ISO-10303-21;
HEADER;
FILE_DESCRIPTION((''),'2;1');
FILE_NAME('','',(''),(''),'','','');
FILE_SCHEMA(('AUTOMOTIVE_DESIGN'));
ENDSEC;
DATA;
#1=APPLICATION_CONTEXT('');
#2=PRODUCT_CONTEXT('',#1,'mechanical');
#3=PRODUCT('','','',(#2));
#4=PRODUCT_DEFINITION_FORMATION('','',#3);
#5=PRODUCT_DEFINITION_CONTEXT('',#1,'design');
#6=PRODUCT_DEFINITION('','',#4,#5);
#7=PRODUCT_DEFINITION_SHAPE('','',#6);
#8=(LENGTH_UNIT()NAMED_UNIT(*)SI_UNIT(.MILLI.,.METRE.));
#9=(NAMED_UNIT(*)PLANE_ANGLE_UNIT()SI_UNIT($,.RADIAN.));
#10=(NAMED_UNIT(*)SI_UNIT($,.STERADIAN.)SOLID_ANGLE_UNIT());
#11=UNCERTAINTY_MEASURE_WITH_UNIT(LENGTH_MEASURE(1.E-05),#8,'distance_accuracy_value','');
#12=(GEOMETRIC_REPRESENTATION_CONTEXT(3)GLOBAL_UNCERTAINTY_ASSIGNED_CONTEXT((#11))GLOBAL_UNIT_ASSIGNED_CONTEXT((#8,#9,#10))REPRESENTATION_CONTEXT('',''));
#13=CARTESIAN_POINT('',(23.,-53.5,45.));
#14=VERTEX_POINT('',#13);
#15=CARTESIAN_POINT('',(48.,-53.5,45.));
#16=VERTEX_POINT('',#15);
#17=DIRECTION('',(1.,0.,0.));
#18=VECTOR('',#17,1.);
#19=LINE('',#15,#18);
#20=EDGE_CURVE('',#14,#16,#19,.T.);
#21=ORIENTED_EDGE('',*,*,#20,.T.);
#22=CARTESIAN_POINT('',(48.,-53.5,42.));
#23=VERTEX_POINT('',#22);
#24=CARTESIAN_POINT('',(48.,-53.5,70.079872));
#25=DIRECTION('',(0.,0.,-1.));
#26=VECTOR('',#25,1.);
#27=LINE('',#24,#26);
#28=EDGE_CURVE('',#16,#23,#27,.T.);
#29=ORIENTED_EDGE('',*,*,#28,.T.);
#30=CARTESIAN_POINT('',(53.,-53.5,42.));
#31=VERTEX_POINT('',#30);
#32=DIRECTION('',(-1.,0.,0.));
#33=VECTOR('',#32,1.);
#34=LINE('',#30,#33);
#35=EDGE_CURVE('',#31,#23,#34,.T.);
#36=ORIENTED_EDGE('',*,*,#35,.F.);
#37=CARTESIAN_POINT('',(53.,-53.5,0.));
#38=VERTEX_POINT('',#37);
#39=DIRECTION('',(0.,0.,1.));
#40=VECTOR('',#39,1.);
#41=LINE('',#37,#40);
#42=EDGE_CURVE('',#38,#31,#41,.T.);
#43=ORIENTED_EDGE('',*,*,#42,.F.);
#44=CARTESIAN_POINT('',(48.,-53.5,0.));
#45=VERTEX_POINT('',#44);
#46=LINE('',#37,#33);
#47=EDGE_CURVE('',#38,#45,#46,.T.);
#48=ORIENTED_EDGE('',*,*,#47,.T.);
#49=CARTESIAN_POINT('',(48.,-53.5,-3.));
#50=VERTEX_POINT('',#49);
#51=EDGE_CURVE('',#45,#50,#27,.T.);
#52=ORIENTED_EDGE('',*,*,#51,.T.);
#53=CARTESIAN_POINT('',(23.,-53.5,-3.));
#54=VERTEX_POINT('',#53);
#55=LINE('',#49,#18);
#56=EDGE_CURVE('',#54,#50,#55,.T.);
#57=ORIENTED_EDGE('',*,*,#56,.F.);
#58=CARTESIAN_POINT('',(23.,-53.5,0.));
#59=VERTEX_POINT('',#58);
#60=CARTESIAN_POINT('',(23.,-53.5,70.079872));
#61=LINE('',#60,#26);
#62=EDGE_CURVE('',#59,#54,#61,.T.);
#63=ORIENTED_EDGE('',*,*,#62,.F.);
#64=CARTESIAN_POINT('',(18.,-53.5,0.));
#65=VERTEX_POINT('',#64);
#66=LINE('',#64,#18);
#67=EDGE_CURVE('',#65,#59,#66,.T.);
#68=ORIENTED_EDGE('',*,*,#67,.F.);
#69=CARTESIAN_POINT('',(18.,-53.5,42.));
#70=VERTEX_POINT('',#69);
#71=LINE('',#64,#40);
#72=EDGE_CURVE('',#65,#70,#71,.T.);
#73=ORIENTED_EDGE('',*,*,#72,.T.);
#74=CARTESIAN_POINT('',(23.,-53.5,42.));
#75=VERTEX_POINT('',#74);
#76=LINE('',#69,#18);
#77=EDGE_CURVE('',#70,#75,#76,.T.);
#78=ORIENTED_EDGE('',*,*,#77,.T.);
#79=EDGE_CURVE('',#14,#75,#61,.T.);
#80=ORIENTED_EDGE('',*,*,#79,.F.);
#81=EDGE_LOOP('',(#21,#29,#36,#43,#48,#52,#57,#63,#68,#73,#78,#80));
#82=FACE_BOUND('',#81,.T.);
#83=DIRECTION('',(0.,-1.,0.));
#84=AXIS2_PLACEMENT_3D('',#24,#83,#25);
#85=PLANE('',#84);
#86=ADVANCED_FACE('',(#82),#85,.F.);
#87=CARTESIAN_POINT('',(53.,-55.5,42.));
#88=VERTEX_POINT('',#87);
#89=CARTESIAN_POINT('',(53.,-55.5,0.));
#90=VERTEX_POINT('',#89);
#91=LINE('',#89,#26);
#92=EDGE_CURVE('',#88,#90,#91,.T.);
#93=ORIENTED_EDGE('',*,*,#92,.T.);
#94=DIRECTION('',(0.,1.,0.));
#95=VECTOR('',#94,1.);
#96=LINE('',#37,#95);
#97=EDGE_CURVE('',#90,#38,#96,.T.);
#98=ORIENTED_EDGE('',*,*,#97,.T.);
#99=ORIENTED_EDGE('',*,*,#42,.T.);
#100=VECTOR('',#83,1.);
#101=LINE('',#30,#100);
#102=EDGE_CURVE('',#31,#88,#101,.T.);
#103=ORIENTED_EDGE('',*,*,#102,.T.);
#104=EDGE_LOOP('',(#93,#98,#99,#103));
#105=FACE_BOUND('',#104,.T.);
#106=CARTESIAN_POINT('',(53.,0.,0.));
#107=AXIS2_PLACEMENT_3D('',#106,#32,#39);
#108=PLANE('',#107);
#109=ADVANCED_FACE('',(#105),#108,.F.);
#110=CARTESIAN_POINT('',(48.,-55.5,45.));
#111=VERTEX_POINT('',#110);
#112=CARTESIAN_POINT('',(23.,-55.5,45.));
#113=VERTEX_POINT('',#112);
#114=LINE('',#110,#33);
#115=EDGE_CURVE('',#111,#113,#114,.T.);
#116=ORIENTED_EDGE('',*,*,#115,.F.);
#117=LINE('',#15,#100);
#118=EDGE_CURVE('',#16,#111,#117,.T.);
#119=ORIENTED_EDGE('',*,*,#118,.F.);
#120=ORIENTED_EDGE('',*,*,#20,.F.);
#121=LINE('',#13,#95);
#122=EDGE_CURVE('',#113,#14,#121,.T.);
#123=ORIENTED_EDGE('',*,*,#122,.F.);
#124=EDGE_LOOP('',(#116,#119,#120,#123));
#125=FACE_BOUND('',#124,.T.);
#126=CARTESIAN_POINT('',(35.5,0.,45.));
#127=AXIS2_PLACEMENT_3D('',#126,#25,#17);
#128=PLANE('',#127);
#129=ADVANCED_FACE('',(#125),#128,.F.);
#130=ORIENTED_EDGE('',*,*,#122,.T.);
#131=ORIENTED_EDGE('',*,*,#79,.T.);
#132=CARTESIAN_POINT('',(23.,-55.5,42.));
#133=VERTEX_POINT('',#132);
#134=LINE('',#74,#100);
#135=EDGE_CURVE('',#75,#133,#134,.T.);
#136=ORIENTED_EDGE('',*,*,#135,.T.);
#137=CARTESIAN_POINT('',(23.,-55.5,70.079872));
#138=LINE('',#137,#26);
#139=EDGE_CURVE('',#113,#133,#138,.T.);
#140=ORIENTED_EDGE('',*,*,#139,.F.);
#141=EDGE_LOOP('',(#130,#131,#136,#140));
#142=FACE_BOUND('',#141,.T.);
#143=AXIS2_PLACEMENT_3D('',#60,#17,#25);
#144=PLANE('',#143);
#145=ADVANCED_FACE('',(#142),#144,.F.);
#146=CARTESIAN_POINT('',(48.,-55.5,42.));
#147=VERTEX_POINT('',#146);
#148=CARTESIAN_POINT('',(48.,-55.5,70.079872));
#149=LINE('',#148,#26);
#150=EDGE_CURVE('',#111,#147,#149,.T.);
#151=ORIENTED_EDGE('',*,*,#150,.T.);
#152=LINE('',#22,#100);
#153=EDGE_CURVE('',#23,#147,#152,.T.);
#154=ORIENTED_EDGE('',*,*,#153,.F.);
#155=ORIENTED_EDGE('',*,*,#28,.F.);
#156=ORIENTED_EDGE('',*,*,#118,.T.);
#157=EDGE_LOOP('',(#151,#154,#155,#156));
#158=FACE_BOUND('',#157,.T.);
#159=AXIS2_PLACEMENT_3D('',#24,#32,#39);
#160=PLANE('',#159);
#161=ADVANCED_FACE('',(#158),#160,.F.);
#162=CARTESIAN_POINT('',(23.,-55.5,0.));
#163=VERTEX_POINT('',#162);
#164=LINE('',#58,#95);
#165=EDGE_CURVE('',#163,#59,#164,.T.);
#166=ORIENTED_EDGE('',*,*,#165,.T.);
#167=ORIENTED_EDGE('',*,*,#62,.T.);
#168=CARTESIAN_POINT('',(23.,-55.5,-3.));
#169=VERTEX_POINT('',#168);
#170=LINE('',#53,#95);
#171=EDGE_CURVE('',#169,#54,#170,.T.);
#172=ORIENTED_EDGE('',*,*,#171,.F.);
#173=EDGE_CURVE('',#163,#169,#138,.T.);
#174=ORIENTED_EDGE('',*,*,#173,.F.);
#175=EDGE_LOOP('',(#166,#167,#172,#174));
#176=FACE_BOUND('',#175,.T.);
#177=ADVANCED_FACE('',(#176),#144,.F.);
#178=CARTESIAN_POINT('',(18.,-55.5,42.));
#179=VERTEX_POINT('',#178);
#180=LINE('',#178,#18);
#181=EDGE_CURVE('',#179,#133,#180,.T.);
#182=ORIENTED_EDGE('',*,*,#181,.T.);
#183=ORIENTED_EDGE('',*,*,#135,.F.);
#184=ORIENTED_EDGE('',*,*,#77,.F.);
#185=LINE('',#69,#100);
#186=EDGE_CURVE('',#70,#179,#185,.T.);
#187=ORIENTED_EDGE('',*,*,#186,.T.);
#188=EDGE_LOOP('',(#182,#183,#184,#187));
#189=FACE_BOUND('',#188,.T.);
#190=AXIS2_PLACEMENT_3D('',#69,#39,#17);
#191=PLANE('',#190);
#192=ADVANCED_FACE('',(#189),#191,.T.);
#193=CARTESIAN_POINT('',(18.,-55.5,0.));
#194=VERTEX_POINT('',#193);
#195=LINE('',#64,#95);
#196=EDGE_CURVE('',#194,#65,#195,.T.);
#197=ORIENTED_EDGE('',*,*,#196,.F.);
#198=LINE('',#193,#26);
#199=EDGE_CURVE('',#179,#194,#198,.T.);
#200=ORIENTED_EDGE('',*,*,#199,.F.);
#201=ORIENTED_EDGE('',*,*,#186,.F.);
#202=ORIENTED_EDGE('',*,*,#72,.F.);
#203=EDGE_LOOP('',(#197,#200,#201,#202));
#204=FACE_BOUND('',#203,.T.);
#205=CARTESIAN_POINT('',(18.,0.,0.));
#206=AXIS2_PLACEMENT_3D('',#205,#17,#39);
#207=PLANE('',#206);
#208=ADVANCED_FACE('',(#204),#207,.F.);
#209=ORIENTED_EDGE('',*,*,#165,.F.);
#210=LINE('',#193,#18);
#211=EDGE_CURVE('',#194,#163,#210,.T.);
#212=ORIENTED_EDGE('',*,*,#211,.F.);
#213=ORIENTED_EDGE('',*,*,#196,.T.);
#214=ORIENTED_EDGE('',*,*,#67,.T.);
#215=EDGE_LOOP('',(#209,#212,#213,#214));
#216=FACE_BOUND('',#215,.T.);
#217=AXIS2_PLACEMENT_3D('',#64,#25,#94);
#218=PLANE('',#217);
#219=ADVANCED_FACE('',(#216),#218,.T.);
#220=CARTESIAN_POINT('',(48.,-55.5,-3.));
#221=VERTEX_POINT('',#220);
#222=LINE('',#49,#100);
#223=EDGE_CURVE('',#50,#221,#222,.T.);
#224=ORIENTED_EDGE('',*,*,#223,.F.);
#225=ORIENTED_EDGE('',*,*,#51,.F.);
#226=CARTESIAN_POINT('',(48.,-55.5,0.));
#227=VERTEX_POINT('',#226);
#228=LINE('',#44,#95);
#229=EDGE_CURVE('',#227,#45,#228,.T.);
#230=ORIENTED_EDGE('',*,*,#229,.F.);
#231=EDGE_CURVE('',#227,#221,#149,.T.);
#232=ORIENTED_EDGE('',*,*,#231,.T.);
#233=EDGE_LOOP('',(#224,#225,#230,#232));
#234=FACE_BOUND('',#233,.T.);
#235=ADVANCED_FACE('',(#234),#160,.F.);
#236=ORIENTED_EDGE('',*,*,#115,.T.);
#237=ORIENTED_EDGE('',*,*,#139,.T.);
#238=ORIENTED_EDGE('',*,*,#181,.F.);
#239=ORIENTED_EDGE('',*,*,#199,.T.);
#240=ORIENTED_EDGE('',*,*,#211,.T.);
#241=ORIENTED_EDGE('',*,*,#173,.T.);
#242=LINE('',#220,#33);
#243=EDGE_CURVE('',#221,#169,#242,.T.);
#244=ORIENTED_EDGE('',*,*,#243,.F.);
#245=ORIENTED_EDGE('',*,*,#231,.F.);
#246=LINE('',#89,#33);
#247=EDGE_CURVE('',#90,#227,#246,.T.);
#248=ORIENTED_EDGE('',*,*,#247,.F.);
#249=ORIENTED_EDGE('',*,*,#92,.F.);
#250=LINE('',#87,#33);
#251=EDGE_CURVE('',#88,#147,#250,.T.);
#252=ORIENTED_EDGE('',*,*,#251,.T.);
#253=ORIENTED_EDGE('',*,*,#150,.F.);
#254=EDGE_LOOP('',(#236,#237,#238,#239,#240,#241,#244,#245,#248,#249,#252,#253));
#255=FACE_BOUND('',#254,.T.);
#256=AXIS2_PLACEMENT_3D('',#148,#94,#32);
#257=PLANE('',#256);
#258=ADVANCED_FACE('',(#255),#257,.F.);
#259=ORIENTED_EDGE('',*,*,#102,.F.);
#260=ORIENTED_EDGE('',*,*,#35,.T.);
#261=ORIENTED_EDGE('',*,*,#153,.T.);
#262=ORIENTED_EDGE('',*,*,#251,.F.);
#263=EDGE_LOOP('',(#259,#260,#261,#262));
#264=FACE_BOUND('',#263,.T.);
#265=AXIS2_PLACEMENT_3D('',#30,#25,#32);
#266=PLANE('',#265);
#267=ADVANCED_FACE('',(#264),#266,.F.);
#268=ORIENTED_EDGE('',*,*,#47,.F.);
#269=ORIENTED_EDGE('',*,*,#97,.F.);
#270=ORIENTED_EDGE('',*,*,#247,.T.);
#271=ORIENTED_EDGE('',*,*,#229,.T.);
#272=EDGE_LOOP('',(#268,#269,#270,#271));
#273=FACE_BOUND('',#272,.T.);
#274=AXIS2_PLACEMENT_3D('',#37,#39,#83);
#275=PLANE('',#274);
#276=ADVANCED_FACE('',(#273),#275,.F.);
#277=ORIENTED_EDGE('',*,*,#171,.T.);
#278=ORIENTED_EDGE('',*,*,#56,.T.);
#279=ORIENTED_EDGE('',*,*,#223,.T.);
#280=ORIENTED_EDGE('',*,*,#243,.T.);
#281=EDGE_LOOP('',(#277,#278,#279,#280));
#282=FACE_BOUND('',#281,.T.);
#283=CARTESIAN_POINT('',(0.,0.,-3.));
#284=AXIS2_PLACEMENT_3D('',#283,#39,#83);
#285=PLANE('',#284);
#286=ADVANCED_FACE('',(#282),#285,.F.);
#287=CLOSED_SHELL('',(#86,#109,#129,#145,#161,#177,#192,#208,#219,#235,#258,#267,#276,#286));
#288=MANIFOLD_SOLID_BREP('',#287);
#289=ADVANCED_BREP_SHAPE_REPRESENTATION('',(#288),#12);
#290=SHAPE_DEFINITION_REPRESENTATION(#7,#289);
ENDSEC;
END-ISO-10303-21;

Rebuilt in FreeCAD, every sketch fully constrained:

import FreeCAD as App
import Part
import Sketcher

V = App.Vector
Q = App.Units.Quantity


def add_polygon(sketch, points):
    """Adds a closed chain of lines whose ends are joined by coincident constraints."""
    first, n = sketch.GeometryCount, len(points)
    for a, b in zip(points, points[1:] + points[:1]):
        sketch.addGeometry(Part.LineSegment(App.Vector(*a, 0), App.Vector(*b, 0)), False)
    for i in range(n):
        sketch.addConstraint(Sketcher.Constraint("Coincident", first + i, 2, first + (i + 1) % n, 1))

doc = App.newDocument("Part")
params = doc.addObject("Spreadsheet::Sheet", "Params")
for row, (alias, value) in enumerate([
    ("sketch1_width", "25 mm"),
    ("sketch1_height", "2 mm"),
    ("pad1_length", "45 mm"),
    ("pad1_length2", "3 mm"),
    ("sketch2_width", "2 mm"),
    ("sketch2_height", "42 mm"),
    ("pad2_length", "5 mm"),
], start=1):
    params.set(f"A{row}", alias)
    params.set(f"B{row}", "=" + value)
    params.setAlias(f"B{row}", alias)

body = doc.addObject("PartDesign::Body", "Body")

sketch1 = body.newObject("Sketcher::SketchObject", "Sketch")
sketch1.AttachmentSupport = (doc.getObject("XY_Plane"), [""])
sketch1.MapMode = "FlatFace"
add_polygon(sketch1, [(23, -53.5), (23, -55.5), (48, -55.5), (48, -53.5)])
sketch1.addConstraint([
    Sketcher.Constraint("Vertical", 0),
    Sketcher.Constraint("Horizontal", 1),
    Sketcher.Constraint("Vertical", 2),
    Sketcher.Constraint("Horizontal", 3),
    Sketcher.Constraint("DistanceX", 1, 1, 1, 2, Q("25 mm")),
    Sketcher.Constraint("DistanceY", 0, 2, 0, 1, Q("2 mm")),
    Sketcher.Constraint("DistanceX", -1, 1, 0, 2, Q("23 mm")),
    Sketcher.Constraint("DistanceY", 0, 2, -1, 1, Q("55.5 mm")),
])
sketch1.setExpression("Constraints[8]", "Params.sketch1_width")
sketch1.setExpression("Constraints[9]", "Params.sketch1_height")
pad1 = body.newObject("PartDesign::Pad", "Pad")
pad1.Profile = sketch1
pad1.Type = "TwoLengths"
pad1.setExpression("Length", "Params.pad1_length")
pad1.setExpression("Length2", "Params.pad1_length2")

sketch2 = body.newObject("Sketcher::SketchObject", "Sketch001")
sketch2.AttachmentSupport = (doc.getObject("YZ_Plane"), [""])
sketch2.MapMode = "FlatFace"
sketch2.AttachmentOffset = App.Placement(V(0, 0, 48), App.Rotation())
add_polygon(sketch2, [(-53.5, 42), (-55.5, 42), (-55.5, 0), (-53.5, 0)])
sketch2.addConstraint([
    Sketcher.Constraint("Horizontal", 0),
    Sketcher.Constraint("Vertical", 1),
    Sketcher.Constraint("Horizontal", 2),
    Sketcher.Constraint("Vertical", 3),
    Sketcher.Constraint("PointOnObject", 1, 2, -1),
    Sketcher.Constraint("DistanceX", 0, 2, 0, 1, Q("2 mm")),
    Sketcher.Constraint("DistanceY", 1, 2, 1, 1, Q("42 mm")),
    Sketcher.Constraint("DistanceX", 0, 2, -1, 1, Q("55.5 mm")),
])
sketch2.setExpression("Constraints[9]", "Params.sketch2_width")
sketch2.setExpression("Constraints[10]", "Params.sketch2_height")
pad2 = body.newObject("PartDesign::Pad", "Pad001")
pad2.Profile = sketch2
pad2.setExpression("Length", "Params.pad2_length")
doc.recompute()

datumplane = body.newObject("PartDesign::Plane", "DatumPlane")
datumplane.AttachmentSupport = (doc.getObject("YZ_Plane"), [""])
datumplane.MapMode = "FlatFace"
datumplane.AttachmentOffset = App.Placement(V(0, 0, 35.5), App.Rotation())
mirrored = body.newObject("PartDesign::Mirrored", "Mirrored")
mirrored.Originals = [pad2]
mirrored.MirrorPlane = (datumplane, [""])
body.Tip = mirrored

doc.recompute()
